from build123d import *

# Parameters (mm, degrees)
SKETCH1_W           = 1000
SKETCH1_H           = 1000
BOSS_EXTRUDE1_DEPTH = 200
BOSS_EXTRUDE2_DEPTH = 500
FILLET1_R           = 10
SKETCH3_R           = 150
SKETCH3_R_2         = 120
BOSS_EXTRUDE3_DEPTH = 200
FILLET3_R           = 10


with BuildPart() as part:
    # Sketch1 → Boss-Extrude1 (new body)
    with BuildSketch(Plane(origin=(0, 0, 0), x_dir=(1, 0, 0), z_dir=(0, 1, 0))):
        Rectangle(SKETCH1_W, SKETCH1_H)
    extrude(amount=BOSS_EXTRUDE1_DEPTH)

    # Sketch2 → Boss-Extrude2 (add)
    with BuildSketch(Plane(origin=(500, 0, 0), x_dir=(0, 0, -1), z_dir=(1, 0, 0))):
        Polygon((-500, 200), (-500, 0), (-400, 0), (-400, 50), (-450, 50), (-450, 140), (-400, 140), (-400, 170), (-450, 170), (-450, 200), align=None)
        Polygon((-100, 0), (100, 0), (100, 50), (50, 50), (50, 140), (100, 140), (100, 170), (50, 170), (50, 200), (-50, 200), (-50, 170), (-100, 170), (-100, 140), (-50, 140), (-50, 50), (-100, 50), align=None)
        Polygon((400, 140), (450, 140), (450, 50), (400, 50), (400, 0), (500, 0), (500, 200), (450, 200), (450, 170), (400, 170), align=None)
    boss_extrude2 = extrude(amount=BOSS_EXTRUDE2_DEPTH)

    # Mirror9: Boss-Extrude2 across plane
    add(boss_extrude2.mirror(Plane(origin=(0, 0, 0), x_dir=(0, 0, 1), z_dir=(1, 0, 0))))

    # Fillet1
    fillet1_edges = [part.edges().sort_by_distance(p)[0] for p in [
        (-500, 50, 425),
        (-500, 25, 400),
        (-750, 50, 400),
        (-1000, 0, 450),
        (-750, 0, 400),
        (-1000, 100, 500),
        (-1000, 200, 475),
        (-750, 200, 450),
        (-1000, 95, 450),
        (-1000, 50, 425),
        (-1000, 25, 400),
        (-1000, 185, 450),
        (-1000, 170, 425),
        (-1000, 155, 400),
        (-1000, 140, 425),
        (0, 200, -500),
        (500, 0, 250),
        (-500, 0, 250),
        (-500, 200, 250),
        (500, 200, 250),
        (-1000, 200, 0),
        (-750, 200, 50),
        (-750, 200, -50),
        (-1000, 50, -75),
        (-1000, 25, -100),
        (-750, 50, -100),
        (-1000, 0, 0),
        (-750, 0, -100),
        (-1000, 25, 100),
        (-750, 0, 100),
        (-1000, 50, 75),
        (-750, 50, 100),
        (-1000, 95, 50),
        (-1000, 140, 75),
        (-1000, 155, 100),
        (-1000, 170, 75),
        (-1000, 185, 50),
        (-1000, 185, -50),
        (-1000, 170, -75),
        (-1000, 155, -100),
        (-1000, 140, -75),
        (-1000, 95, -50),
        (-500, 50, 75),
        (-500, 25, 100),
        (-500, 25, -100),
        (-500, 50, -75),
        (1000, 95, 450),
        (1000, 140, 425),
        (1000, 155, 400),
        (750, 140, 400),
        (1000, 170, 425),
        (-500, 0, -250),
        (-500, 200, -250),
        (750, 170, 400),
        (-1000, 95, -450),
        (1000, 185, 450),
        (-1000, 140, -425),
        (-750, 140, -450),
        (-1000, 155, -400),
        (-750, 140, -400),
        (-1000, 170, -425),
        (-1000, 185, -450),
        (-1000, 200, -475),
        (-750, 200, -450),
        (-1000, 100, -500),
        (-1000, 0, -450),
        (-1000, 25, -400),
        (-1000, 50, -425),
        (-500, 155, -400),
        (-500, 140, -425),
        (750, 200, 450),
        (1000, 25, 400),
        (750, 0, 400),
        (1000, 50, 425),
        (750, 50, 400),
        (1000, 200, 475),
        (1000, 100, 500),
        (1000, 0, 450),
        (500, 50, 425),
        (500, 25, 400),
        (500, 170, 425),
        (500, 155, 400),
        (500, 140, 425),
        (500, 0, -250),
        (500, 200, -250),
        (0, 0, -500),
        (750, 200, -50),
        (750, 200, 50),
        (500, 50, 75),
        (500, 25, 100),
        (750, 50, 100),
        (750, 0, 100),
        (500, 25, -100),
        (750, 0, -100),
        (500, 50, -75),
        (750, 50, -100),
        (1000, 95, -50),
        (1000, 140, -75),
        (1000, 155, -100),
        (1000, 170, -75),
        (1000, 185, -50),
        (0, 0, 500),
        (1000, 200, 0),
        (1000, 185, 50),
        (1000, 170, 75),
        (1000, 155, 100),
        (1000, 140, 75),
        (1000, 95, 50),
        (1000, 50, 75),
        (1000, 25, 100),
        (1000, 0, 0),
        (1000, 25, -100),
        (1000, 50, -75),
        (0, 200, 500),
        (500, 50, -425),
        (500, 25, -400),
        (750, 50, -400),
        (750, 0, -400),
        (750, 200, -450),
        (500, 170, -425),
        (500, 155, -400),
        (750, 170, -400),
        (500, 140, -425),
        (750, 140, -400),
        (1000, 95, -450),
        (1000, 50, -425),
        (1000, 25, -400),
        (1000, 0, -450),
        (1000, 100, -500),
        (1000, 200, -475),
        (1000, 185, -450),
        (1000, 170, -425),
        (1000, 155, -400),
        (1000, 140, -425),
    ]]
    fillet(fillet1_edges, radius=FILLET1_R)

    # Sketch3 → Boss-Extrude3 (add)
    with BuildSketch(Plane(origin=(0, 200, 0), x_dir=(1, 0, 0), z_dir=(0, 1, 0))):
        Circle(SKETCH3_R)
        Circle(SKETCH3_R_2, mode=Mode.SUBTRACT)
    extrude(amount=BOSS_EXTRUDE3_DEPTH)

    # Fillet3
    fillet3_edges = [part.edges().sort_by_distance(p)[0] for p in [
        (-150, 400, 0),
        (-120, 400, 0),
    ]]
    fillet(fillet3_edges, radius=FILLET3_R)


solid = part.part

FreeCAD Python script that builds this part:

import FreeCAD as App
import Part
import Sketcher

V = App.Vector
Q = App.Units.Quantity


def edges_at(feature, points):
    """Names of the edges that pass closest to the given points."""
    edges = feature.Shape.Edges
    near = lambda p: min(range(len(edges)), key=lambda i: edges[i].distToShape(Part.Vertex(*p))[0])
    return sorted({f"Edge{near(p) + 1}" for p in points})


def add_polygon(sketch, points):
    """Adds a closed chain of lines whose ends are joined by coincident constraints."""
    first, n = sketch.GeometryCount, len(points)
    for a, b in zip(points, points[1:] + points[:1]):
        sketch.addGeometry(Part.LineSegment(App.Vector(*a, 0), App.Vector(*b, 0)), False)
    for i in range(n):
        sketch.addConstraint(Sketcher.Constraint("Coincident", first + i, 2, first + (i + 1) % n, 1))

doc = App.newDocument("Part")
body = doc.addObject("PartDesign::Body", "Body")

sketch1 = doc.addObject("Sketcher::SketchObject", "Sketch")
body.addObject(sketch1)
sketch1.AttachmentSupport = (doc.XZ_Plane, [""])
sketch1.MapMode = "FlatFace"
add_polygon(sketch1, [(-500, -500), (-500, 500), (500, 500), (500, -500)])
sketch1.addConstraint([
    Sketcher.Constraint("Vertical", 0),
    Sketcher.Constraint("Horizontal", 1),
    Sketcher.Constraint("Vertical", 2),
    Sketcher.Constraint("Horizontal", 3),
    Sketcher.Constraint("Symmetric", 0, 2, 2, 2, -1, 1),
    Sketcher.Constraint("Equal", 3, 0),
    Sketcher.Constraint("DistanceX", 1, 1, 1, 2, Q("1000 mm")),
])
pad1 = doc.addObject("PartDesign::Pad", "Pad")
body.addObject(pad1)
pad1.Profile = sketch1
pad1.Length = 200
pad1.Reversed = True

sketch2 = doc.addObject("Sketcher::SketchObject", "Sketch001")
body.addObject(sketch2)
sketch2.AttachmentSupport = (doc.YZ_Plane, [""])
sketch2.MapMode = "FlatFace"
sketch2.AttachmentOffset = App.Placement(V(0, 0, 500), App.Rotation())
add_polygon(sketch2, [(200, 500), (0, 500), (0, 400), (50, 400), (50, 450), (140, 450), (140, 400), (170, 400), (170, 450), (200, 450)])
add_polygon(sketch2, [(0, 100), (0, -100), (50, -100), (50, -50), (140, -50), (140, -100), (170, -100), (170, -50), (200, -50), (200, 50), (170, 50), (170, 100), (140, 100), (140, 50), (50, 50), (50, 100)])
add_polygon(sketch2, [(140, -400), (140, -450), (50, -450), (50, -400), (0, -400), (0, -500), (200, -500), (200, -450), (170, -450), (170, -400)])
sketch2.addConstraint([
    Sketcher.Constraint("Horizontal", 0),
    Sketcher.Constraint("Vertical", 1),
    Sketcher.Constraint("Horizontal", 2),
    Sketcher.Constraint("Vertical", 3),
    Sketcher.Constraint("Horizontal", 4),
    Sketcher.Constraint("Vertical", 5),
    Sketcher.Constraint("Horizontal", 6),
    Sketcher.Constraint("Vertical", 7),
    Sketcher.Constraint("Horizontal", 8),
    Sketcher.Constraint("Vertical", 9),
    Sketcher.Constraint("Vertical", 10),
    Sketcher.Constraint("Horizontal", 11),
    Sketcher.Constraint("Vertical", 12),
    Sketcher.Constraint("Horizontal", 13),
    Sketcher.Constraint("Vertical", 14),
    Sketcher.Constraint("Horizontal", 15),
    Sketcher.Constraint("Vertical", 16),
    Sketcher.Constraint("Horizontal", 17),
    Sketcher.Constraint("Vertical", 18),
    Sketcher.Constraint("Horizontal", 19),
    Sketcher.Constraint("Vertical", 20),
    Sketcher.Constraint("Horizontal", 21),
    Sketcher.Constraint("Vertical", 22),
    Sketcher.Constraint("Horizontal", 23),
    Sketcher.Constraint("Vertical", 24),
    Sketcher.Constraint("Horizontal", 25),
    Sketcher.Constraint("Vertical", 26),
    Sketcher.Constraint("Horizontal", 27),
    Sketcher.Constraint("Vertical", 28),
    Sketcher.Constraint("Horizontal", 29),
    Sketcher.Constraint("Vertical", 30),
    Sketcher.Constraint("Horizontal", 31),
    Sketcher.Constraint("Vertical", 32),
    Sketcher.Constraint("Horizontal", 33),
    Sketcher.Constraint("Vertical", 34),
    Sketcher.Constraint("Horizontal", 35),
    Sketcher.Constraint("Symmetric", 10, 2, 25, 2, -1, 1),
    Sketcher.Constraint("Symmetric", 1, 2, 29, 2, -1, 1),
    Sketcher.Constraint("Symmetric", 16, 2, 19, 2, -1),
    Sketcher.Constraint("Symmetric", 14, 2, 21, 2, -1),
    Sketcher.Constraint("Symmetric", 12, 2, 23, 2, -1),
    Sketcher.Constraint("Symmetric", 4, 2, 26, 2, -1),
    Sketcher.Constraint("Symmetric", 0, 2, 30, 2, -1),
    Sketcher.Constraint("Symmetric", 8, 2, 32, 2, -1),
    Sketcher.Constraint("Symmetric", 6, 2, 34, 2, -1),
    Sketcher.Constraint("Horizontal", 2, 2, 5, 2),
    Sketcher.Constraint("Horizontal", 4, 2, 7, 2),
    Sketcher.Constraint("Horizontal", 11, 2, 14, 2),
    Sketcher.Constraint("Horizontal", 13, 2, 16, 2),
    Sketcher.Constraint("Vertical", 3, 2, 11, 2),
    Sketcher.Constraint("Vertical", 5, 2, 13, 2),
    Sketcher.Constraint("Vertical", 7, 2, 15, 2),
    Sketcher.Constraint("Vertical", 9, 2, 17, 2),
    Sketcher.Constraint("Vertical", 24, 2, 27, 2),
    Sketcher.Constraint("Equal", 6, 8),
    Sketcher.Constraint("Equal", 29, 3),
    Sketcher.Constraint("Equal", 7, 9),
    Sketcher.Constraint("Equal", 31, 10),
    Sketcher.Constraint("Equal", 9, 12),
    Sketcher.Constraint("Equal", 1, 18),
    Sketcher.Constraint("DistanceX", 0, 2, 0, 1, Q("200 mm")),
    Sketcher.Constraint("DistanceX", 4, 1, 4, 2, Q("90 mm")),
    Sketcher.Constraint("DistanceY", -1, 1, 0, 2, Q("500 mm")),
])
pad2 = doc.addObject("PartDesign::Pad", "Pad001")
body.addObject(pad2)
pad2.Profile = sketch2
pad2.Length = 500
doc.recompute()

mirrored = doc.addObject("PartDesign::Mirrored", "Mirrored")
body.addObject(mirrored)
mirrored.Originals = [pad2]
mirrored.MirrorPlane = (doc.YZ_Plane, [""])
body.Tip = mirrored
doc.recompute()

fillet = doc.addObject("PartDesign::Fillet", "Fillet")
body.addObject(fillet)
fillet.Base = (mirrored, edges_at(mirrored, [
    (-500, 50, 425),
    (-500, 25, 400),
    (-750, 50, 400),
    (-1000, 0, 450),
    (-750, 0, 400),
    (-1000, 100, 500),
    (-1000, 200, 475),
    (-750, 200, 450),
    (-1000, 95, 450),
    (-1000, 50, 425),
    (-1000, 25, 400),
    (-1000, 185, 450),
    (-1000, 170, 425),
    (-1000, 155, 400),
    (-1000, 140, 425),
    (0, 200, -500),
    (500, 0, 250),
    (-500, 0, 250),
    (-500, 200, 250),
    (500, 200, 250),
    (-1000, 200, 0),
    (-750, 200, 50),
    (-750, 200, -50),
    (-1000, 50, -75),
    (-1000, 25, -100),
    (-750, 50, -100),
    (-1000, 0, 0),
    (-750, 0, -100),
    (-1000, 25, 100),
    (-750, 0, 100),
    (-1000, 50, 75),
    (-750, 50, 100),
    (-1000, 95, 50),
    (-1000, 140, 75),
    (-1000, 155, 100),
    (-1000, 170, 75),
    (-1000, 185, 50),
    (-1000, 185, -50),
    (-1000, 170, -75),
    (-1000, 155, -100),
    (-1000, 140, -75),
    (-1000, 95, -50),
    (-500, 50, 75),
    (-500, 25, 100),
    (-500, 25, -100),
    (-500, 50, -75),
    (1000, 95, 450),
    (1000, 140, 425),
    (1000, 155, 400),
    (750, 140, 400),
    (1000, 170, 425),
    (-500, 0, -250),
    (-500, 200, -250),
    (750, 170, 400),
    (-1000, 95, -450),
    (1000, 185, 450),
    (-1000, 140, -425),
    (-750, 140, -450),
    (-1000, 155, -400),
    (-750, 140, -400),
    (-1000, 170, -425),
    (-1000, 185, -450),
    (-1000, 200, -475),
    (-750, 200, -450),
    (-1000, 100, -500),
    (-1000, 0, -450),
    (-1000, 25, -400),
    (-1000, 50, -425),
    (-500, 155, -400),
    (-500, 140, -425),
    (750, 200, 450),
    (1000, 25, 400),
    (750, 0, 400),
    (1000, 50, 425),
    (750, 50, 400),
    (1000, 200, 475),
    (1000, 100, 500),
    (1000, 0, 450),
    (500, 50, 425),
    (500, 25, 400),
    (500, 170, 425),
    (500, 155, 400),
    (500, 140, 425),
    (500, 0, -250),
    (500, 200, -250),
    (0, 0, -500),
    (750, 200, -50),
    (750, 200, 50),
    (500, 50, 75),
    (500, 25, 100),
    (750, 50, 100),
    (750, 0, 100),
    (500, 25, -100),
    (750, 0, -100),
    (500, 50, -75),
    (750, 50, -100),
    (1000, 95, -50),
    (1000, 140, -75),
    (1000, 155, -100),
    (1000, 170, -75),
    (1000, 185, -50),
    (0, 0, 500),
    (1000, 200, 0),
    (1000, 185, 50),
    (1000, 170, 75),
    (1000, 155, 100),
    (1000, 140, 75),
    (1000, 95, 50),
    (1000, 50, 75),
    (1000, 25, 100),
    (1000, 0, 0),
    (1000, 25, -100),
    (1000, 50, -75),
    (0, 200, 500),
    (500, 50, -425),
    (500, 25, -400),
    (750, 50, -400),
    (750, 0, -400),
    (750, 200, -450),
    (500, 170, -425),
    (500, 155, -400),
    (750, 170, -400),
    (500, 140, -425),
    (750, 140, -400),
    (1000, 95, -450),
    (1000, 50, -425),
    (1000, 25, -400),
    (1000, 0, -450),
    (1000, 100, -500),
    (1000, 200, -475),
    (1000, 185, -450),
    (1000, 170, -425),
    (1000, 155, -400),
    (1000, 140, -425),
]))
fillet.Radius = 10

sketch3 = doc.addObject("Sketcher::SketchObject", "Sketch002")
body.addObject(sketch3)
sketch3.AttachmentSupport = (doc.XZ_Plane, [""])
sketch3.MapMode = "FlatFace"
sketch3.AttachmentOffset = App.Placement(V(0, 0, -200), App.Rotation())
sketch3.addGeometry([
    Part.Circle(V(0, 0, 0), V(0, 0, 1), 150),
    Part.Circle(V(0, 0, 0), V(0, 0, 1), 120),
], False)
sketch3.addConstraint([
    Sketcher.Constraint("Coincident", 0, 3, -1, 1),
    Sketcher.Constraint("Coincident", 1, 3, -1, 1),
    Sketcher.Constraint("Diameter", 0, Q("300 mm")),
    Sketcher.Constraint("Diameter", 1, Q("240 mm")),
])
pad3 = doc.addObject("PartDesign::Pad", "Pad002")
body.addObject(pad3)
pad3.Profile = sketch3
pad3.Length = 200
pad3.Reversed = True
doc.recompute()

fillet2 = doc.addObject("PartDesign::Fillet", "Fillet001")
body.addObject(fillet2)
fillet2.Base = (pad3, edges_at(pad3, [(-150, 400, 0), (-120, 400, 0)]))
fillet2.Radius = 10

doc.recompute()
